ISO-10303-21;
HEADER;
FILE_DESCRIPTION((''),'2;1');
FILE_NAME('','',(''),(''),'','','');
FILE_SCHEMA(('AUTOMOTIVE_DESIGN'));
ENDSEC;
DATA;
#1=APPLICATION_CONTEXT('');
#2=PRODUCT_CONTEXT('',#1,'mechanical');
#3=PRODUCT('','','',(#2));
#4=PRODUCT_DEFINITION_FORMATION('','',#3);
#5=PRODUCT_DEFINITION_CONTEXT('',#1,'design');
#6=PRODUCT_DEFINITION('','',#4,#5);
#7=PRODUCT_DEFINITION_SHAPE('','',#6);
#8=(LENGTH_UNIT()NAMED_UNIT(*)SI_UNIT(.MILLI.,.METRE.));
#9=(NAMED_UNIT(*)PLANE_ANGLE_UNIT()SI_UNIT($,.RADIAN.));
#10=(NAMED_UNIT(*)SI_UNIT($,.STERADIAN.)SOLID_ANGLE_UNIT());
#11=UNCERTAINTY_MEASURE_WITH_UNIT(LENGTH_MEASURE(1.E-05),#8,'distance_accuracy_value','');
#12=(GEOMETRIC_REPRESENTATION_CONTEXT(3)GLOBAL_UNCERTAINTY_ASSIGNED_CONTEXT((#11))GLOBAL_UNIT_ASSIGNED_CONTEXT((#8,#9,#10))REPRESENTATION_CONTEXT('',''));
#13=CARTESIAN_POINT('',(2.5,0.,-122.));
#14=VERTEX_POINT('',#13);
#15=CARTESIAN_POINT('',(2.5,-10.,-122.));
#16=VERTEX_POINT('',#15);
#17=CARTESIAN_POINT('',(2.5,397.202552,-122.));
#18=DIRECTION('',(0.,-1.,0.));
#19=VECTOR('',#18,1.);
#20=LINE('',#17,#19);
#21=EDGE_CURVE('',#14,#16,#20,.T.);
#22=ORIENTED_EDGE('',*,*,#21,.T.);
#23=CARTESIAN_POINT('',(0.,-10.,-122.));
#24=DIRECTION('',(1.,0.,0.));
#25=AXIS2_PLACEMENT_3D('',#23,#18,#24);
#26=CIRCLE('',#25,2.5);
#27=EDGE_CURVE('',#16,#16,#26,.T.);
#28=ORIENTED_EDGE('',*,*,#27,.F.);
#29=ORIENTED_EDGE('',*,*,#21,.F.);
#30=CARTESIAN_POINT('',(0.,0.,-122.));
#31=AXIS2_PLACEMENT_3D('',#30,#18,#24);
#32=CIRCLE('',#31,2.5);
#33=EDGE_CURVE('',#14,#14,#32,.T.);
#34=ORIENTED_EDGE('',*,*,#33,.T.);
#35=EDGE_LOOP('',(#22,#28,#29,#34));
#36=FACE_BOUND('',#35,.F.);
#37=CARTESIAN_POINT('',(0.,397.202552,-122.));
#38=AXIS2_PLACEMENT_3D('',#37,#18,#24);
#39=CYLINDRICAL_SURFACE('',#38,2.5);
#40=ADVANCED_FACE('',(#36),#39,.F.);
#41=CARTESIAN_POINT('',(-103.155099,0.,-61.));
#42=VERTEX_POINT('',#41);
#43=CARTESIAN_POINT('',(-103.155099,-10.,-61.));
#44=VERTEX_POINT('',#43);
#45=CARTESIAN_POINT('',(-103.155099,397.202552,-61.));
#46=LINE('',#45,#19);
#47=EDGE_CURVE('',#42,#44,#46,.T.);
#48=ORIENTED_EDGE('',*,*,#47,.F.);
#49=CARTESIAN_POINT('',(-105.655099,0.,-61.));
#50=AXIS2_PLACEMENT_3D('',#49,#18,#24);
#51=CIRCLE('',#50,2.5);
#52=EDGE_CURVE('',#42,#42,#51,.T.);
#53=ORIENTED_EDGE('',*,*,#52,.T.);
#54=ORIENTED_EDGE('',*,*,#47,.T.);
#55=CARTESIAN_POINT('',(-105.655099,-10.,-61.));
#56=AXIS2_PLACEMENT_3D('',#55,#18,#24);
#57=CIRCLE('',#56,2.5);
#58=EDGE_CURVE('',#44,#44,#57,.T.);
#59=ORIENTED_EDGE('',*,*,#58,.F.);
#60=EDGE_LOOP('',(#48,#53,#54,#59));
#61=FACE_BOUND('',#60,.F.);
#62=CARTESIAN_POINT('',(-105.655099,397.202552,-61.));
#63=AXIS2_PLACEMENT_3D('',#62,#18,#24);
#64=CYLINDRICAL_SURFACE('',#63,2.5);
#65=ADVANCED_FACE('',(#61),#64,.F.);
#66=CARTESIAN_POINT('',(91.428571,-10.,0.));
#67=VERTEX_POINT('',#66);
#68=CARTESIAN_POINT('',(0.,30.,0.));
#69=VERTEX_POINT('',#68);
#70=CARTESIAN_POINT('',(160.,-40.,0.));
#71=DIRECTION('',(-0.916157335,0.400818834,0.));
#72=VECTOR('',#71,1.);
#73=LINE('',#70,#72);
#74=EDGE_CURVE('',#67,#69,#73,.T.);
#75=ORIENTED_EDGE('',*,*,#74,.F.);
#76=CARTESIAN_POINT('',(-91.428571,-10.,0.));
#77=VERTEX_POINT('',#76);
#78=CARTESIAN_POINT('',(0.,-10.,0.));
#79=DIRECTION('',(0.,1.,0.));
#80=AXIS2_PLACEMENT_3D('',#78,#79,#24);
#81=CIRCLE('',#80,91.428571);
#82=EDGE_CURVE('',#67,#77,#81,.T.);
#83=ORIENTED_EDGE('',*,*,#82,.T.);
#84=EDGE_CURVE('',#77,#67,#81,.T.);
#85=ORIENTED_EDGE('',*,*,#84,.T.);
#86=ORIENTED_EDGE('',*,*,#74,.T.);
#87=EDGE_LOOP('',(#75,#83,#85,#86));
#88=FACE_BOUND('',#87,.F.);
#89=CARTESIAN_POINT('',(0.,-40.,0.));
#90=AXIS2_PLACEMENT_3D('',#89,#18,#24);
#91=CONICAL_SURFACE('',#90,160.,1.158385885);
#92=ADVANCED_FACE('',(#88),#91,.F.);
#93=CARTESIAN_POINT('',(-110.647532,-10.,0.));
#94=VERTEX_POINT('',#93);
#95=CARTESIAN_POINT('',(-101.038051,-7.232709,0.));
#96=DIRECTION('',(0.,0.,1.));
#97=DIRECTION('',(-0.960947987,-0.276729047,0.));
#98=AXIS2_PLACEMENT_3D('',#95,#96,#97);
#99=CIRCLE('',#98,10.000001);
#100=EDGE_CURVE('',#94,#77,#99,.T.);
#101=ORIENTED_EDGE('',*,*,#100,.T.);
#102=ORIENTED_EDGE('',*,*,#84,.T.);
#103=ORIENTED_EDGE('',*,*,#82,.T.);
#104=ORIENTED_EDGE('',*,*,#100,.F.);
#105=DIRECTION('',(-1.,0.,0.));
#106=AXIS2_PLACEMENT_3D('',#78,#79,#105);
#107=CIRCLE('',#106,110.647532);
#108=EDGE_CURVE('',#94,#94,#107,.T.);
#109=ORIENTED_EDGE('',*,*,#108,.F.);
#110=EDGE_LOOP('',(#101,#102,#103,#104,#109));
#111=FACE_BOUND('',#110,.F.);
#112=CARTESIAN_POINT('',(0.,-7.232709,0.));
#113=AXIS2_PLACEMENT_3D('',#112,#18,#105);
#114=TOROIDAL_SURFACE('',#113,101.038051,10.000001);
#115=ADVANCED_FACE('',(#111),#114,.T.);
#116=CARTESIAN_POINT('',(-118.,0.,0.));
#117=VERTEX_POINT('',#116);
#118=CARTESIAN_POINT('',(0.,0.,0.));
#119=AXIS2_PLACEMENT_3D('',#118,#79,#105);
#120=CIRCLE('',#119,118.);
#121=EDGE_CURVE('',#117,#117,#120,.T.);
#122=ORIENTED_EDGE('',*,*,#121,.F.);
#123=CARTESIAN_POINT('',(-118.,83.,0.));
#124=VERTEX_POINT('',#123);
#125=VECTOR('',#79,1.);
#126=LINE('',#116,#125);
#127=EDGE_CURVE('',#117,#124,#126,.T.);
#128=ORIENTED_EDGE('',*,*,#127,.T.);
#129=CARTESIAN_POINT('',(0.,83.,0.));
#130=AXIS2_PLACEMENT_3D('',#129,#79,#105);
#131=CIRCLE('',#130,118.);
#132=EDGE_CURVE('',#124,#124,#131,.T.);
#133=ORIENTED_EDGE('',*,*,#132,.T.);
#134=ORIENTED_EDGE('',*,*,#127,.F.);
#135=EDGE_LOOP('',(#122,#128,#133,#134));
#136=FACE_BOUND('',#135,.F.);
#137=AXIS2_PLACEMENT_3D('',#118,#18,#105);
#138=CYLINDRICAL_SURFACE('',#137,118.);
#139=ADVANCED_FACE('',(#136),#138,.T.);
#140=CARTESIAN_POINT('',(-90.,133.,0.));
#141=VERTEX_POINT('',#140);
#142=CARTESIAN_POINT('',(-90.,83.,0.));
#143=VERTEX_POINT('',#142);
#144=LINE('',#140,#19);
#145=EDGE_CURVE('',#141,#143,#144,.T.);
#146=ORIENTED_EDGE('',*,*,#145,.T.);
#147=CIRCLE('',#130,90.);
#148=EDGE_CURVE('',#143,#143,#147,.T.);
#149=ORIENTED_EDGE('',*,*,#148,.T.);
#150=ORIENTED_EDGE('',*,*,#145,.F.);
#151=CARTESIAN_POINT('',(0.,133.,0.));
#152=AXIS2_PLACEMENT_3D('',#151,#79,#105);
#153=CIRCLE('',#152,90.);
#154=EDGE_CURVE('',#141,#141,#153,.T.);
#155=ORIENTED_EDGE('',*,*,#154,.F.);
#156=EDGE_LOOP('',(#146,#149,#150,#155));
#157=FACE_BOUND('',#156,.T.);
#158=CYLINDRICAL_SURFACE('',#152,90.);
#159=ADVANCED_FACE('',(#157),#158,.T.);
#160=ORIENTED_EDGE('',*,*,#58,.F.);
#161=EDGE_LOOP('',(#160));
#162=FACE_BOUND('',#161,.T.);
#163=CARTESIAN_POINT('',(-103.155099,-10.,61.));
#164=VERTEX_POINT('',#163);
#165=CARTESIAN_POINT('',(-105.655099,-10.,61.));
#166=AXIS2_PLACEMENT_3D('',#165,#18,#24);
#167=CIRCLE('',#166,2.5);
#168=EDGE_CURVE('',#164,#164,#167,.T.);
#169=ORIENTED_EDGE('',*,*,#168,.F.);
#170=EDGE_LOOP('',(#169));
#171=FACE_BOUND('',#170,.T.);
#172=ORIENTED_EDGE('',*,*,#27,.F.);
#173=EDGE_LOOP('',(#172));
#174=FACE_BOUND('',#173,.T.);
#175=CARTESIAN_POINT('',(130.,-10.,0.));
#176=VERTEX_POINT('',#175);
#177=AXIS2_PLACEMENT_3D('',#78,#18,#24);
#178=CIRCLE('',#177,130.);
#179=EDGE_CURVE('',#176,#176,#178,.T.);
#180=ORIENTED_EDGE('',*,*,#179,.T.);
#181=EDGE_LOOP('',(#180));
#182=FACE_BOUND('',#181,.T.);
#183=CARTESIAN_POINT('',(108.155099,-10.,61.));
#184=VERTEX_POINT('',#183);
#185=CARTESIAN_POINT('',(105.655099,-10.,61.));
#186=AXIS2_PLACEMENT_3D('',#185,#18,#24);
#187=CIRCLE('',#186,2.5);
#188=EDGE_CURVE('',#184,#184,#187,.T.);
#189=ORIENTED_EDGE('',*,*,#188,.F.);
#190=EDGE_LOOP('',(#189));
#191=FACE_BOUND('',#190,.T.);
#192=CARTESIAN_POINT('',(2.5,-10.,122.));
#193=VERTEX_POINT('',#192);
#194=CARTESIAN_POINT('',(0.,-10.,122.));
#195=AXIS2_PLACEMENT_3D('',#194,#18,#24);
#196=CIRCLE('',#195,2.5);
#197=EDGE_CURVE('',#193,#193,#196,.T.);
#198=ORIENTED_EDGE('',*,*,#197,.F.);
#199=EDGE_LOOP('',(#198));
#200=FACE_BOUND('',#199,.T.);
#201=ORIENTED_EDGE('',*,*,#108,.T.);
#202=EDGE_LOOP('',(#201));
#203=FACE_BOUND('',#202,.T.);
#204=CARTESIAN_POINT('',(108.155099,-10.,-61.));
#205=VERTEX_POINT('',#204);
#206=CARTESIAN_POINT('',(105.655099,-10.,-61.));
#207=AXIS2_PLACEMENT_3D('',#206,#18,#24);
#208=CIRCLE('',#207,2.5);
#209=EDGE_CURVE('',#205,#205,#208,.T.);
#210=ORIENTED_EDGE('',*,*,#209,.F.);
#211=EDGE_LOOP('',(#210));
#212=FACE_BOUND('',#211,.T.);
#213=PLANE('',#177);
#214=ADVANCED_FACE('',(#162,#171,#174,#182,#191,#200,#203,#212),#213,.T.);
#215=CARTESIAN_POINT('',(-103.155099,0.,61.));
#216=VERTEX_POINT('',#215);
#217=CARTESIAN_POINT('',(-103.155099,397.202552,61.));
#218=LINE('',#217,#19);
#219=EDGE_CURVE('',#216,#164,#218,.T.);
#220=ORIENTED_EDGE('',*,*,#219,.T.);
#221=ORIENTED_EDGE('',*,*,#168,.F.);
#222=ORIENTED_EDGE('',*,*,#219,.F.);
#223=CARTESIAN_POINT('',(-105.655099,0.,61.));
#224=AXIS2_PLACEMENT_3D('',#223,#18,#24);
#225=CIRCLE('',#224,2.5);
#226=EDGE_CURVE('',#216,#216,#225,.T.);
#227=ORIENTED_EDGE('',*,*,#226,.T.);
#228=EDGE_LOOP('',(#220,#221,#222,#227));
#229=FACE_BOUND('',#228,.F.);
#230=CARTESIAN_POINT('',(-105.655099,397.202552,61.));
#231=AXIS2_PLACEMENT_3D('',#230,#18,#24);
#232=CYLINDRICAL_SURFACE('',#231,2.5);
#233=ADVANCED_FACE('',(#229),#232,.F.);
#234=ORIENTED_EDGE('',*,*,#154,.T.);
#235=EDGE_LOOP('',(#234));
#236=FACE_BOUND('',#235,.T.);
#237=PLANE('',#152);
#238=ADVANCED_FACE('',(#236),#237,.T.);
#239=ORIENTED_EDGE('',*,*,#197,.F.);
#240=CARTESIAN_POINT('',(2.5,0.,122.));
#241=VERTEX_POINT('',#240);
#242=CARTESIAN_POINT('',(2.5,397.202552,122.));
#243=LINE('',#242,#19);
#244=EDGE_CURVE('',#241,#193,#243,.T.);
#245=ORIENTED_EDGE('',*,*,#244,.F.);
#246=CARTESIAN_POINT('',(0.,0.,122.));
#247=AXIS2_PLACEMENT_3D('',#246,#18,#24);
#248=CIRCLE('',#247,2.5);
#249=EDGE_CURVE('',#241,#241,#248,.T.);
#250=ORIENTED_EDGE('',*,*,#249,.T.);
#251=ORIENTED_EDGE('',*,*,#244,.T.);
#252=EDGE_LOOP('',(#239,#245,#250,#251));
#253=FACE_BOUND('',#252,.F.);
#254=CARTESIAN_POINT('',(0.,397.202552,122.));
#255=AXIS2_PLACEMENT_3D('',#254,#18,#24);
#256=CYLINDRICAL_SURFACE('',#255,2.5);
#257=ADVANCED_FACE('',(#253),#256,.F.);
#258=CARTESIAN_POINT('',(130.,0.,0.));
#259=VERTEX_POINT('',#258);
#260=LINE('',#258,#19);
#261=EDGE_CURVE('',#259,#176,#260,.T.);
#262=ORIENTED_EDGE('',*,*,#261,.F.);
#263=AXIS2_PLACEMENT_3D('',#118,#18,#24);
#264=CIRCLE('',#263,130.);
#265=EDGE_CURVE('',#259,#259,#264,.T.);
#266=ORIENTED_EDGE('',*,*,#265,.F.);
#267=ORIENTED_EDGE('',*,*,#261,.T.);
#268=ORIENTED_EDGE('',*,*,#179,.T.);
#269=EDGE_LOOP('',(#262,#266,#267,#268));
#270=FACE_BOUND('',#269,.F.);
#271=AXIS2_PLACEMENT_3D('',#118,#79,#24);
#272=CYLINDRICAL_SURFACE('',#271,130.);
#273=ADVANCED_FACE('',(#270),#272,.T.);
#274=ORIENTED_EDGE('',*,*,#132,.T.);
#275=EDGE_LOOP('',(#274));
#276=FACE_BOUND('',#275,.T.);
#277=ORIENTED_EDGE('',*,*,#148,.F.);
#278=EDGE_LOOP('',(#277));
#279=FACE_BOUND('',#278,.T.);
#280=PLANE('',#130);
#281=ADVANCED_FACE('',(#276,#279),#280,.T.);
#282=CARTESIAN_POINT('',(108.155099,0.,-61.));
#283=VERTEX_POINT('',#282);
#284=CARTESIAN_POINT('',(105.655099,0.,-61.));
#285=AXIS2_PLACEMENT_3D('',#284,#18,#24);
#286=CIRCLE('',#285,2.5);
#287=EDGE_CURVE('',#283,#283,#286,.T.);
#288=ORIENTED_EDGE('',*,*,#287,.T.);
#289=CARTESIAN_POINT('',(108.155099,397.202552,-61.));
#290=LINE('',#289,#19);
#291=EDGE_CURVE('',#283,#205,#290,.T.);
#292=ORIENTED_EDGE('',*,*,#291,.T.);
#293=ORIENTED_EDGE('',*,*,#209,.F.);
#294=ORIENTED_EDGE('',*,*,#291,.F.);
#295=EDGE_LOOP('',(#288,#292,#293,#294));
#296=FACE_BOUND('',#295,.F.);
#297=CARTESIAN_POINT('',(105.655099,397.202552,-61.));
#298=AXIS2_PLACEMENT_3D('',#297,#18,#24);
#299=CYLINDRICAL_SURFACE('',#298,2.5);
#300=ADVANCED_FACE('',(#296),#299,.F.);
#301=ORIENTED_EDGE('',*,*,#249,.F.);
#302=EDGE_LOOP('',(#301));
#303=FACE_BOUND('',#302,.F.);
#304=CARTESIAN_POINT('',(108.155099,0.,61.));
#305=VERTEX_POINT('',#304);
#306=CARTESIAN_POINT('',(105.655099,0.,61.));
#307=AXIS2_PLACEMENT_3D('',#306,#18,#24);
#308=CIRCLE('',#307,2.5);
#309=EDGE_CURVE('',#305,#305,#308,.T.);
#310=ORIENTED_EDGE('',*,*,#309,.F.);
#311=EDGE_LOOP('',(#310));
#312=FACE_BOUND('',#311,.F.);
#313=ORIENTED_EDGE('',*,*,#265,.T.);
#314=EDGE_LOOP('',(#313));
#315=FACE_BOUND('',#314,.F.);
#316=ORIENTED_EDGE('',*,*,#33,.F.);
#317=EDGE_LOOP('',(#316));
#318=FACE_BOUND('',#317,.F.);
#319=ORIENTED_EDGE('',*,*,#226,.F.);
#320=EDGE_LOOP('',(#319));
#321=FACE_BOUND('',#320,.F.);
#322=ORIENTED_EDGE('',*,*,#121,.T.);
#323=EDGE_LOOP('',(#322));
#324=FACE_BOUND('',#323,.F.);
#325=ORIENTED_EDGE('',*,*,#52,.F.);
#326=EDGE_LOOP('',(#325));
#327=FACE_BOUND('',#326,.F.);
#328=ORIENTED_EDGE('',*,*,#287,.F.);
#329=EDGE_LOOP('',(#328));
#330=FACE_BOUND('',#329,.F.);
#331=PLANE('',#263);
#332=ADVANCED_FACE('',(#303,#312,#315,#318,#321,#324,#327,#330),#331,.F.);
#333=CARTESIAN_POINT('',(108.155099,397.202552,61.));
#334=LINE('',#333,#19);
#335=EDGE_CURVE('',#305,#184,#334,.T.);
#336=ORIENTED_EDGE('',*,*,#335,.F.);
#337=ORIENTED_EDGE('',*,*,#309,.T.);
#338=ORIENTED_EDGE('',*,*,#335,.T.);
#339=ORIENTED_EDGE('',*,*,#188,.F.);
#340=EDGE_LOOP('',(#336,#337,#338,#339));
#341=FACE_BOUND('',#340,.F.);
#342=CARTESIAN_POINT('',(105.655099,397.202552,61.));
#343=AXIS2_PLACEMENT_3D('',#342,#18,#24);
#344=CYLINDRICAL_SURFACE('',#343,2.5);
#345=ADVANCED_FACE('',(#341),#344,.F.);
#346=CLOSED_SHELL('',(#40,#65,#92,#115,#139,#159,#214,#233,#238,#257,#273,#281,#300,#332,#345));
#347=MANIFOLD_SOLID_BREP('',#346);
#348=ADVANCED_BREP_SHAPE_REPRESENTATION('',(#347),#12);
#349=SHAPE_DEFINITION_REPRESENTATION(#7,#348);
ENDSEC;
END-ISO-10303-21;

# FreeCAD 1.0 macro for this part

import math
import FreeCAD as App
import Part
import Sketcher
from FreeCAD import Vector
Q = App.Units.Quantity


def add_polygon(sketch, points):
    """Adds a closed chain of lines whose ends are joined by coincident constraints."""
    first, n = sketch.GeometryCount, len(points)
    for a, b in zip(points, points[1:] + points[:1]):
        sketch.addGeometry(Part.LineSegment(App.Vector(*a, 0), App.Vector(*b, 0)), False)
    for i in range(n):
        sketch.addConstraint(Sketcher.Constraint("Coincident", first + i, 2, first + (i + 1) % n, 1))

doc = App.newDocument("Part")
params = doc.addObject("Spreadsheet::Sheet", "Params")
for row, (alias, value) in enumerate([
    ("sketch1_diameter", "260 mm"),
    ("pad1_length", "10 mm"),
    ("sketch2_diameter", "236 mm"),
    ("pad2_length", "133 mm"),
    ("sketch3_width", "160 mm"),
    ("sketch3_height", "70 mm"),
    ("groove_angle", "360 deg"),
    ("sketch4_radius", "10.000001 mm"),
    ("revolution_angle", "360 deg"),
    ("sketch5_diameter", "5 mm"),
    ("hole_diameter", "5 mm"),
    ("sketch6_diameter", "236 mm"),
    ("sketch6_diameter2", "180 mm"),
    ("pocket1_length", "50 mm"),
], start=1):
    params.set(f"A{row}", alias)
    params.set(f"B{row}", "=" + value)
    params.setAlias(f"B{row}", alias)

body = doc.addObject("PartDesign::Body", "Body")

# Sketch on XZ plane
sketch1 = body.newObject("Sketcher::SketchObject", "Sketch")
sketch1.AttachmentSupport = (doc.getObject("XZ_Plane"), [""])
sketch1.MapMode = "FlatFace"
sketch1.addGeometry(Part.Circle(Vector(0, 0, 0), Vector(0, 0, 1), 130), False)
sketch1.addConstraint([
    Sketcher.Constraint("Coincident", 0, 3, -1, 1),
    Sketcher.Constraint("Diameter", 0, Q("260 mm")),
])
sketch1.setExpression("Constraints[1]", "Params.sketch1_diameter")
pad1 = body.newObject("PartDesign::Pad", "Pad")
pad1.Profile = sketch1
pad1.setExpression("Length", "Params.pad1_length")

# Sketch on XZ plane
sketch2 = body.newObject("Sketcher::SketchObject", "Sketch001")
sketch2.AttachmentSupport = (doc.getObject("XZ_Plane"), [""])
sketch2.MapMode = "FlatFace"
sketch2.addGeometry(Part.Circle(Vector(0, 0, 0), Vector(0, 0, 1), 118), False)
sketch2.addConstraint([
    Sketcher.Constraint("Coincident", 0, 3, -1, 1),
    Sketcher.Constraint("Diameter", 0, Q("236 mm")),
])
sketch2.setExpression("Constraints[1]", "Params.sketch2_diameter")
pad2 = body.newObject("PartDesign::Pad", "Pad001")
pad2.Profile = sketch2
pad2.setExpression("Length", "Params.pad2_length")
pad2.Reversed = True

# Sketch on XY plane
sketch3 = body.newObject("Sketcher::SketchObject", "Sketch002")
sketch3.AttachmentSupport = (doc.getObject("XY_Plane"), [""])
sketch3.MapMode = "FlatFace"
add_polygon(sketch3, [(0, -40), (160, -40), (0, 30)])  # lines 0-2
sketch3.addConstraint([
    Sketcher.Constraint("Horizontal", 0),
    Sketcher.Constraint("Vertical", 2),
    Sketcher.Constraint("PointOnObject", 1, 2, -2),
    Sketcher.Constraint("DistanceX", 0, 1, 0, 2, Q("160 mm")),
    Sketcher.Constraint("DistanceY", 2, 2, 2, 1, Q("70 mm")),
    Sketcher.Constraint("DistanceY", 0, 2, -1, 1, Q("40 mm")),
])
sketch3.setExpression("Constraints[6]", "Params.sketch3_width")
sketch3.setExpression("Constraints[7]", "Params.sketch3_height")
groove = body.newObject("PartDesign::Groove", "Groove")
groove.Profile = sketch3
groove.ReferenceAxis = (sketch3, ["V_Axis"])
groove.setExpression("Angle", "Params.groove_angle")

# Sketch on XY plane
sketch4 = body.newObject("Sketcher::SketchObject", "Sketch003")
sketch4.AttachmentSupport = (doc.getObject("XY_Plane"), [""])
sketch4.MapMode = "FlatFace"
sketch4.addGeometry([
    Part.LineSegment(Vector(-91, -10, 0), Vector(-111, -10, 0)),
    Part.ArcOfCircle(Part.Circle(Vector(-101, -7, 0), Vector(0, 0, 1), 10), math.radians(-164), math.radians(-16)),
], False)
sketch4.addConstraint([
    Sketcher.Constraint("Coincident", 0, 1, 1, 2),
    Sketcher.Constraint("Coincident", 1, 1, 0, 2),
    Sketcher.Constraint("Horizontal", 0),
    Sketcher.Constraint("Radius", 1, Q("10.000001 mm")),
    Sketcher.Constraint("DistanceY", 0, 1, -1, 1, Q("10 mm")),
    Sketcher.Constraint("DistanceX", 0, 2, 0, 1, Q("19.218961 mm")),
    Sketcher.Constraint("DistanceX", 1, 3, -1, 1, Q("101.038051 mm")),
])
sketch4.setExpression("Constraints[3]", "Params.sketch4_radius")
revolution = body.newObject("PartDesign::Revolution", "Revolution")
revolution.Profile = sketch4
revolution.ReferenceAxis = (sketch4, ["V_Axis"])
revolution.setExpression("Angle", "Params.revolution_angle")

# Sketch on XZ plane
sketch5 = body.newObject("Sketcher::SketchObject", "Sketch004")
sketch5.AttachmentSupport = (doc.getObject("XZ_Plane"), [""])
sketch5.MapMode = "FlatFace"
sketch5.addGeometry([
    Part.Circle(Vector(-105.7, 61, 0), Vector(0, 0, 1), 2.5),  # 0
    Part.Circle(Vector(-105.7, -61, 0), Vector(0, 0, 1), 2.5),  # 1
    Part.Circle(Vector(0, -122, 0), Vector(0, 0, 1), 2.5),  # 2
    Part.Circle(Vector(0, 122, 0), Vector(0, 0, 1), 2.5),  # 3
    Part.Circle(Vector(105.7, 61, 0), Vector(0, 0, 1), 2.5),  # 4
    Part.Circle(Vector(105.7, -61, 0), Vector(0, 0, 1), 2.5),  # 5
], False)
sketch5.addConstraint([
    Sketcher.Constraint("Equal", 0, 1),
    Sketcher.Constraint("Equal", 1, 2),
    Sketcher.Constraint("Equal", 2, 3),
    Sketcher.Constraint("Equal", 3, 4),
    Sketcher.Constraint("Equal", 4, 5),
    Sketcher.Constraint("Symmetric", 2, 3, 3, 3, -1, 1),
    Sketcher.Constraint("Symmetric", 1, 3, 4, 3, -1, 1),
    Sketcher.Constraint("Symmetric", 0, 3, 5, 3, -1, 1),
    Sketcher.Constraint("Symmetric", 0, 3, 4, 3, -2),
    Sketcher.Constraint("PointOnObject", 2, 3, -2),
    Sketcher.Constraint("Diameter", 0, Q("5 mm")),
    Sketcher.Constraint("DistanceY", -1, 1, 0, 3, Q("61 mm")),
    Sketcher.Constraint("DistanceY", 2, 3, -1, 1, Q("122 mm")),
    Sketcher.Constraint("DistanceX", 0, 3, -1, 1, Q("105.655099 mm")),
])
sketch5.setExpression("Constraints[10]", "Params.sketch5_diameter")
doc.recompute()
hole = body.newObject("PartDesign::Hole", "Hole")
hole.Profile = sketch5
hole.ThreadType = "None"
hole.setExpression("Diameter", "Params.hole_diameter")
hole.DepthType = "ThroughAll"
hole.Reversed = True

# Sketch on XZ plane
sketch6 = body.newObject("Sketcher::SketchObject", "Sketch005")
sketch6.AttachmentSupport = (doc.getObject("XZ_Plane"), [""])
sketch6.MapMode = "FlatFace"
sketch6.AttachmentOffset = App.Placement(Vector(0, 0, -133), App.Rotation())
sketch6.addGeometry([
    Part.Circle(Vector(0, 0, 0), Vector(0, 0, 1), 118),
    Part.Circle(Vector(0, 0, 0), Vector(0, 0, 1), 90),
], False)
sketch6.addConstraint([
    Sketcher.Constraint("Coincident", 0, 3, -1, 1),
    Sketcher.Constraint("Coincident", 1, 3, -1, 1),
    Sketcher.Constraint("Diameter", 0, Q("236 mm")),
    Sketcher.Constraint("Diameter", 1, Q("180 mm")),
])
sketch6.setExpression("Constraints[2]", "Params.sketch6_diameter")
sketch6.setExpression("Constraints[3]", "Params.sketch6_diameter2")
pocket1 = body.newObject("PartDesign::Pocket", "Pocket")
pocket1.Profile = sketch6
pocket1.setExpression("Length", "Params.pocket1_length")
pocket1.Reversed = True

doc.recompute()
